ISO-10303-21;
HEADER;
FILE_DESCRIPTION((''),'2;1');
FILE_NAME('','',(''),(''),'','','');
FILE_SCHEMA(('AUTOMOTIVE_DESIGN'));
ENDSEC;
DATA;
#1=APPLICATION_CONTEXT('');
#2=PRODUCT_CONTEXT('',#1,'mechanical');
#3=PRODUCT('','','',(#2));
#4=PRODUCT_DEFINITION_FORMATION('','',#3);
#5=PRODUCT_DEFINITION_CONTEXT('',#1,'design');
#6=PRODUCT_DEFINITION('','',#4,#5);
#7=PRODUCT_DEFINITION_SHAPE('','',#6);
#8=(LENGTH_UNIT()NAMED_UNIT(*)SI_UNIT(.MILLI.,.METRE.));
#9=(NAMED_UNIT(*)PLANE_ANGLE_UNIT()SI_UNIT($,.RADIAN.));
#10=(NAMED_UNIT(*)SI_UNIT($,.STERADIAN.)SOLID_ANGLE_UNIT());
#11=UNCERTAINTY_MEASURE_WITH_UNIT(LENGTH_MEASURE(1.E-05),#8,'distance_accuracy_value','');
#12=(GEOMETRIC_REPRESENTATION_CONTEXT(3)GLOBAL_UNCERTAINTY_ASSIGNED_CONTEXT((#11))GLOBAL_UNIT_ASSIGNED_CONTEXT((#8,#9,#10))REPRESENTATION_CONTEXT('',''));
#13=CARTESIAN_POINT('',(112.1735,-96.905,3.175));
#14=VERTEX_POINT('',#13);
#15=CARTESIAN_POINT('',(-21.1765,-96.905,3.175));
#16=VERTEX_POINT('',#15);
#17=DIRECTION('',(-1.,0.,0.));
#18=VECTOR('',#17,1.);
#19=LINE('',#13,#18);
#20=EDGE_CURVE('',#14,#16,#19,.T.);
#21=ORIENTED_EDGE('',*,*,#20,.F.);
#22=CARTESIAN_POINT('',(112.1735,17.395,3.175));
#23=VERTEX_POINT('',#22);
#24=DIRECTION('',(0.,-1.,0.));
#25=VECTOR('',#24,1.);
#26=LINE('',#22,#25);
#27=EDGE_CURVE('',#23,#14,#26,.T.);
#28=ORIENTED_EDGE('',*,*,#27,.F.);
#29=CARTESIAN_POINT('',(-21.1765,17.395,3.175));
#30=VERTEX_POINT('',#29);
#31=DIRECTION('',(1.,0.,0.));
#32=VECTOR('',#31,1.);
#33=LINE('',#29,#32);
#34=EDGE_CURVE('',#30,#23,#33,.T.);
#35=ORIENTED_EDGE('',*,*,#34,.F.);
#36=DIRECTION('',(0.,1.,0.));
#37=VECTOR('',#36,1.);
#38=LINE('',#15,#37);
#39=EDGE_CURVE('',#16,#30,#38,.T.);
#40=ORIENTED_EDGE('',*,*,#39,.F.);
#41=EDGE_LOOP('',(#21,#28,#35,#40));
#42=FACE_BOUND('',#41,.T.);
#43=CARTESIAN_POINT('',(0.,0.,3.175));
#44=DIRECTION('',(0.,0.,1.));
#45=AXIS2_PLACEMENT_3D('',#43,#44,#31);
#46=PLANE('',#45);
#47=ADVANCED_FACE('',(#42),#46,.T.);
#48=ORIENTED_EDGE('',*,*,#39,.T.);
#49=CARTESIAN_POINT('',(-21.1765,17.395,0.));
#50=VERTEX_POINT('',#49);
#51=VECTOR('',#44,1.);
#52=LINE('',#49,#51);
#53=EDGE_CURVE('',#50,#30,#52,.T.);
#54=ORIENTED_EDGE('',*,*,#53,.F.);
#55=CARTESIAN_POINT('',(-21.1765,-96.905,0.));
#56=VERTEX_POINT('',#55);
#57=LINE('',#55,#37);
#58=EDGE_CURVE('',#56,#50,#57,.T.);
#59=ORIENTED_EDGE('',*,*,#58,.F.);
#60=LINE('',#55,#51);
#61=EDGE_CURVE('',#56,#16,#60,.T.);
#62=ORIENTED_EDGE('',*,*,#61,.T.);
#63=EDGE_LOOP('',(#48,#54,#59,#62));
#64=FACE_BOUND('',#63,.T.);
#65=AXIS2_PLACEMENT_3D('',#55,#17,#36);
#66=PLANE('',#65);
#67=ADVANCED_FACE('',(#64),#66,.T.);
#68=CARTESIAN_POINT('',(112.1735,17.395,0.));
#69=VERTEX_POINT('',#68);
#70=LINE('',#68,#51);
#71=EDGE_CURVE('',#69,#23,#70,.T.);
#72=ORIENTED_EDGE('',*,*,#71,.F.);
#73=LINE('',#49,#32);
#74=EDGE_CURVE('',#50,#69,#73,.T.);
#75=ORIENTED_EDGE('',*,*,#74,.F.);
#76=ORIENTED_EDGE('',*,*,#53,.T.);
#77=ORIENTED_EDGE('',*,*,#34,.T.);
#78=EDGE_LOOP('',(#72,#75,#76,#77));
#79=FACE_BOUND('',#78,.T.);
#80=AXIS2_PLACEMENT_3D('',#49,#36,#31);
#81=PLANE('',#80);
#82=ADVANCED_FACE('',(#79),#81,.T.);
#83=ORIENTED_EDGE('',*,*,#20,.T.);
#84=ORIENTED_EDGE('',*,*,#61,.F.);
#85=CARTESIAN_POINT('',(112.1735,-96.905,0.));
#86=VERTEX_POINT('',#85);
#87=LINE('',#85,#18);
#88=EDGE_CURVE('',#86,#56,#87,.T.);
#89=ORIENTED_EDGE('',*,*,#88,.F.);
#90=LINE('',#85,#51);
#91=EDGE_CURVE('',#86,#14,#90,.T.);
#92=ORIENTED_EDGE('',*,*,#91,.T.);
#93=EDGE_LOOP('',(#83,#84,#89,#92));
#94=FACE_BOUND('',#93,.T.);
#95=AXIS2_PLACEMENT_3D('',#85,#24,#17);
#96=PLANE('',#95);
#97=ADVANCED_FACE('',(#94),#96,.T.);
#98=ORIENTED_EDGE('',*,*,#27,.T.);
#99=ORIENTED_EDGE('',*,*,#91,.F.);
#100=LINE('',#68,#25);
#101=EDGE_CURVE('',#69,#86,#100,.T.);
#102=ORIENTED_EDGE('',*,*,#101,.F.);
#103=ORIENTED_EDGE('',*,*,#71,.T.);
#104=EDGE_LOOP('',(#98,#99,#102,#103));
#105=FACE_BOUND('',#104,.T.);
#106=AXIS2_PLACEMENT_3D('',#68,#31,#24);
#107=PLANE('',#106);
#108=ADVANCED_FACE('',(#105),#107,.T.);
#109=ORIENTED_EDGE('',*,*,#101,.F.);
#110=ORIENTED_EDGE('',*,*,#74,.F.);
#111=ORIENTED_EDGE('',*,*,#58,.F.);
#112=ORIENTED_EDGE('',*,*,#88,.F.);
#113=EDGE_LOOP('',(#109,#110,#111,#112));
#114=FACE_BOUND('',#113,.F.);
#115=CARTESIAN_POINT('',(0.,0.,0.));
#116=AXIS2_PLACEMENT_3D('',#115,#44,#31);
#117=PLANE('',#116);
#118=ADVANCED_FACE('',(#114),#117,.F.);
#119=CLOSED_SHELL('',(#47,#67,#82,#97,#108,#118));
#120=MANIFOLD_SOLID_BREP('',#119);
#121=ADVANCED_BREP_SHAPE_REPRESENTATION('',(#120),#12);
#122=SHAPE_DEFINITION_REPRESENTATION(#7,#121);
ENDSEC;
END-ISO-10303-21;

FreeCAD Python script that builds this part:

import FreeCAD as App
import Part
import Sketcher

V = App.Vector
Q = App.Units.Quantity

doc = App.newDocument("Part")
body = doc.addObject("PartDesign::Body", "Body")

# Sketch on XY plane
sketch1 = body.newObject("Sketcher::SketchObject", "Sketch")
sketch1.AttachmentSupport = (doc.getObject("XY_Plane"), [""])
sketch1.MapMode = "FlatFace"
sketch1.addGeometry(Part.LineSegment(V(112, 17, 0), V(-21, 17, 0)), False)
sketch1.addGeometry(Part.LineSegment(V(-21, 17, 0), V(-21, -97, 0)), False)
sketch1.addGeometry(Part.LineSegment(V(-21, -97, 0), V(112, -97, 0)), False)
sketch1.addGeometry(Part.LineSegment(V(112, -97, 0), V(112, 17, 0)), False)
sketch1.addConstraint(Sketcher.Constraint("Coincident", 0, 2, 1, 1))
sketch1.addConstraint(Sketcher.Constraint("Coincident", 1, 2, 2, 1))
sketch1.addConstraint(Sketcher.Constraint("Coincident", 2, 2, 3, 1))
sketch1.addConstraint(Sketcher.Constraint("Coincident", 3, 2, 0, 1))
sketch1.addConstraint(Sketcher.Constraint("Horizontal", 0))
sketch1.addConstraint(Sketcher.Constraint("Vertical", 1))
sketch1.addConstraint(Sketcher.Constraint("Horizontal", 2))
sketch1.addConstraint(Sketcher.Constraint("Vertical", 3))
sketch1.addConstraint(Sketcher.Constraint("DistanceY", 1, 2, 1, 1, Q("4.5 in")))
sketch1.addConstraint(Sketcher.Constraint("DistanceX", 0, 2, 0, 1, Q("5.25 in")))
sketch1.addConstraint(Sketcher.Constraint("DistanceX", 0, 2, -1, 1, 21.1765))
sketch1.addConstraint(Sketcher.Constraint("DistanceY", -1, 1, 0, 2, 17.395))
pad1 = body.newObject("PartDesign::Pad", "Pad")
pad1.Profile = sketch1
pad1.Length = Q("0.125 in")

doc.recompute()
